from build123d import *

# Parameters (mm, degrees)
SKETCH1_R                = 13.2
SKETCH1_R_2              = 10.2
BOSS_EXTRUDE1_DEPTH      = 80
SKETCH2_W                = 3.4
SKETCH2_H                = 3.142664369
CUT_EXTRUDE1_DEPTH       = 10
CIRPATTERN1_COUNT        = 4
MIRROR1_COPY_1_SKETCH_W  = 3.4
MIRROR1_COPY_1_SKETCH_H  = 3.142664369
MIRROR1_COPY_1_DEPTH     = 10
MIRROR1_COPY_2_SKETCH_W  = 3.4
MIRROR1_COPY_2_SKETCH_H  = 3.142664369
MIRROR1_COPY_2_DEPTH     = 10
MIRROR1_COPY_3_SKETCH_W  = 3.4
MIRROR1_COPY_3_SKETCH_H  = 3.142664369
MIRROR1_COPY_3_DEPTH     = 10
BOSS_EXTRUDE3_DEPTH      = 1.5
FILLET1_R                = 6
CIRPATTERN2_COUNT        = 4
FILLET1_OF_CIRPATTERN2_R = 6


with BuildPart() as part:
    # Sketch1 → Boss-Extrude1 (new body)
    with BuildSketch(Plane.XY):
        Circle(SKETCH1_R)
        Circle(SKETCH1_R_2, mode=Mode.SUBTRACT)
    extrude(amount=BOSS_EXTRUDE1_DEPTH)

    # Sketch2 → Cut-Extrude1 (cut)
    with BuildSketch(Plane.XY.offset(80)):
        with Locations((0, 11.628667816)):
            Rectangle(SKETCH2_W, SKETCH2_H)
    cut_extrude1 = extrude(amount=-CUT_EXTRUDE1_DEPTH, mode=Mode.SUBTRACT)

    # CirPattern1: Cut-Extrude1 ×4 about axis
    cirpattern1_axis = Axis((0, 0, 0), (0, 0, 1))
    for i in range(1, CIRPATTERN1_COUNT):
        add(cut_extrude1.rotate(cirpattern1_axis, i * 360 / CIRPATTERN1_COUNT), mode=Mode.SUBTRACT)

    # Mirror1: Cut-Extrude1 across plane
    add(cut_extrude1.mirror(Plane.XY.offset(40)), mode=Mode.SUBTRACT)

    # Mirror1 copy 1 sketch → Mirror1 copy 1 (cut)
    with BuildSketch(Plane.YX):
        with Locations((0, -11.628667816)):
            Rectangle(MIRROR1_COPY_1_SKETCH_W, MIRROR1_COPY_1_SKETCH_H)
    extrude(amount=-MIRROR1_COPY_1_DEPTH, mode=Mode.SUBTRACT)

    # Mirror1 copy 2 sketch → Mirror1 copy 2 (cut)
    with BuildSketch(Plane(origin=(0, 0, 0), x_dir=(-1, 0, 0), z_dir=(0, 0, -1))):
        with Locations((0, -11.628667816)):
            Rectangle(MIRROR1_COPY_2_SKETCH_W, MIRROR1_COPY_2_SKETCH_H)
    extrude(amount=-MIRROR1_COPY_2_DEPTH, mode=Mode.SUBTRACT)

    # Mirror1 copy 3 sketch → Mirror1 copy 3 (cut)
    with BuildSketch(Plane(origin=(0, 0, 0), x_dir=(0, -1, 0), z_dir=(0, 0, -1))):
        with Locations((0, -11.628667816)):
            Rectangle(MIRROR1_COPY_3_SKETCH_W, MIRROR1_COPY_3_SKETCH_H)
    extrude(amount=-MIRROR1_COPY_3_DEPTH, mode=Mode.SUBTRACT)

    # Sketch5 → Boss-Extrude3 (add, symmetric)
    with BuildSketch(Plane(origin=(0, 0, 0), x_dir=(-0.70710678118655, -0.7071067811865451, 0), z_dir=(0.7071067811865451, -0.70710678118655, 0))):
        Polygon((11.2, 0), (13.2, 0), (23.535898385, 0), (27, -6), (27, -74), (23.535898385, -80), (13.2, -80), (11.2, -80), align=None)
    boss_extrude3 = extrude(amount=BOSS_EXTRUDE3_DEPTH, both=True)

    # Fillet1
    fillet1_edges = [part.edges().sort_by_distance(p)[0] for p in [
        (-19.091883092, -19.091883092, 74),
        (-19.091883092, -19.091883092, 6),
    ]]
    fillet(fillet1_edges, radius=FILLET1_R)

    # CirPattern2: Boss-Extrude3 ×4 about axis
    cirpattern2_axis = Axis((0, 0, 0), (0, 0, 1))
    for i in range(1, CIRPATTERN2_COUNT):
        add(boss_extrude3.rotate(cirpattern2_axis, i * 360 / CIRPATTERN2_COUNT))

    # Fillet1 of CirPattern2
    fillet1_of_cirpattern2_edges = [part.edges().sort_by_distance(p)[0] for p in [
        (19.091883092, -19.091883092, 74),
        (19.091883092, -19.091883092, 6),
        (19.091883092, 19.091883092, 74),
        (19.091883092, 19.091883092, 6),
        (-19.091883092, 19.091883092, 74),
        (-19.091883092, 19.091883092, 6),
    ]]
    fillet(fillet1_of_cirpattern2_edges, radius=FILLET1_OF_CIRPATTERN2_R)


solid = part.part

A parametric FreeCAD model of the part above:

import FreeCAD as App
import Part
import Sketcher
from FreeCAD import Vector
Q = App.Units.Quantity


def edges_at(feature, points):
    """Names of the edges that pass closest to the given points."""
    edges = feature.Shape.Edges
    near = lambda p: min(range(len(edges)), key=lambda i: edges[i].distToShape(Part.Vertex(*p))[0])
    return sorted({f"Edge{near(p) + 1}" for p in points})

doc = App.newDocument("Part")
body = doc.addObject("PartDesign::Body", "Body")

# Sketch on XY plane
sketch1 = doc.addObject("Sketcher::SketchObject", "Sketch")
body.addObject(sketch1)
sketch1.AttachmentSupport = (doc.XY_Plane, [""])
sketch1.MapMode = "FlatFace"
sketch1.addGeometry([
    Part.Circle(Vector(0, 0, 0), Vector(0, 0, 1), 13),
    Part.Circle(Vector(0, 0, 0), Vector(0, 0, 1), 10),
], False)
sketch1.addConstraint([
    Sketcher.Constraint("Coincident", 0, 3, -1, 1),
    Sketcher.Constraint("Coincident", 1, 3, -1, 1),
    Sketcher.Constraint("Diameter", 0, Q("26.4 mm")),
    Sketcher.Constraint("Diameter", 1, Q("20.4 mm")),
])
pad1 = doc.addObject("PartDesign::Pad", "Pad")
body.addObject(pad1)
pad1.Profile = sketch1
pad1.Length = 80

# Sketch on XY plane
sketch2 = doc.addObject("Sketcher::SketchObject", "Sketch001")
body.addObject(sketch2)
sketch2.AttachmentSupport = (doc.XY_Plane, [""])
sketch2.MapMode = "FlatFace"
sketch2.AttachmentOffset = App.Placement(Vector(0, 0, 80), App.Rotation())
sketch2.addGeometry([
    Part.LineSegment(Vector(-1.7, 13.2, 0), Vector(-1.7, 10.1, 0)),
    Part.LineSegment(Vector(-1.7, 10.1, 0), Vector(1.7, 10.1, 0)),
    Part.LineSegment(Vector(1.7, 10.1, 0), Vector(1.7, 13.2, 0)),
    Part.LineSegment(Vector(1.7, 13.2, 0), Vector(-1.7, 13.2, 0)),
], False)
sketch2.addConstraint([
    Sketcher.Constraint("Coincident", 0, 2, 1, 1),
    Sketcher.Constraint("Coincident", 1, 2, 2, 1),
    Sketcher.Constraint("Coincident", 2, 2, 3, 1),
    Sketcher.Constraint("Coincident", 3, 2, 0, 1),
    Sketcher.Constraint("Vertical", 0),
    Sketcher.Constraint("Horizontal", 1),
    Sketcher.Constraint("Vertical", 2),
    Sketcher.Constraint("Horizontal", 3),
    Sketcher.Constraint("DistanceX", 1, 1, 1, 2, Q("3.4 mm")),
    Sketcher.Constraint("DistanceX", 0, 2, -1, 1, Q("1.7 mm")),
    Sketcher.Constraint("DistanceY", -1, 1, 2, 2, Q("13.2 mm")),
    Sketcher.Constraint("DistanceY", 0, 2, 0, 1, Q("3.142664 mm")),
])
pocket1 = doc.addObject("PartDesign::Pocket", "Pocket")
body.addObject(pocket1)
pocket1.Profile = sketch2
pocket1.Length = 10
doc.recompute()

polarpattern = doc.addObject("PartDesign::PolarPattern", "PolarPattern")
body.addObject(polarpattern)
polarpattern.Originals = [pocket1]
polarpattern.Axis = (doc.Z_Axis, [""])
polarpattern.Angle = 360
polarpattern.Occurrences = 4
body.Tip = polarpattern
doc.recompute()

datumplane = doc.addObject("PartDesign::Plane", "DatumPlane")
body.addObject(datumplane)
datumplane.AttachmentSupport = (doc.XY_Plane, [""])
datumplane.MapMode = "FlatFace"
datumplane.AttachmentOffset = App.Placement(Vector(0, 0, 40), App.Rotation())
mirrored = doc.addObject("PartDesign::Mirrored", "Mirrored")
body.addObject(mirrored)
mirrored.Originals = [pocket1]
mirrored.MirrorPlane = (datumplane, [""])
body.Tip = mirrored

# Sketch on XY plane
sketch3 = doc.addObject("Sketcher::SketchObject", "Sketch002")
body.addObject(sketch3)
sketch3.AttachmentSupport = (doc.XY_Plane, [""])
sketch3.MapMode = "FlatFace"
sketch3.addGeometry([
    Part.LineSegment(Vector(-10.1, -1.7, 0), Vector(-13.2, -1.7, 0)),
    Part.LineSegment(Vector(-13.2, -1.7, 0), Vector(-13.2, 1.7, 0)),
    Part.LineSegment(Vector(-13.2, 1.7, 0), Vector(-10.1, 1.7, 0)),
    Part.LineSegment(Vector(-10.1, 1.7, 0), Vector(-10.1, -1.7, 0)),
], False)
sketch3.addConstraint([
    Sketcher.Constraint("Coincident", 0, 2, 1, 1),
    Sketcher.Constraint("Coincident", 1, 2, 2, 1),
    Sketcher.Constraint("Coincident", 2, 2, 3, 1),
    Sketcher.Constraint("Coincident", 3, 2, 0, 1),
    Sketcher.Constraint("Horizontal", 0),
    Sketcher.Constraint("Vertical", 1),
    Sketcher.Constraint("Horizontal", 2),
    Sketcher.Constraint("Vertical", 3),
    Sketcher.Constraint("DistanceY", 1, 1, 1, 2, Q("3.4 mm")),
    Sketcher.Constraint("DistanceX", 0, 2, -1, 1, Q("13.2 mm")),
    Sketcher.Constraint("DistanceY", 0, 2, -1, 1, Q("1.7 mm")),
    Sketcher.Constraint("DistanceX", 0, 2, 0, 1, Q("3.142664 mm")),
])
pocket2 = doc.addObject("PartDesign::Pocket", "Pocket001")
body.addObject(pocket2)
pocket2.Profile = sketch3
pocket2.Length = 10
pocket2.Reversed = True

# Sketch on XY plane
sketch4 = doc.addObject("Sketcher::SketchObject", "Sketch003")
body.addObject(sketch4)
sketch4.AttachmentSupport = (doc.XY_Plane, [""])
sketch4.MapMode = "FlatFace"
sketch4.addGeometry([
    Part.LineSegment(Vector(1.7, -10.1, 0), Vector(1.7, -13.2, 0)),
    Part.LineSegment(Vector(1.7, -13.2, 0), Vector(-1.7, -13.2, 0)),
    Part.LineSegment(Vector(-1.7, -13.2, 0), Vector(-1.7, -10.1, 0)),
    Part.LineSegment(Vector(-1.7, -10.1, 0), Vector(1.7, -10.1, 0)),
], False)
sketch4.addConstraint([
    Sketcher.Constraint("Coincident", 0, 2, 1, 1),
    Sketcher.Constraint("Coincident", 1, 2, 2, 1),
    Sketcher.Constraint("Coincident", 2, 2, 3, 1),
    Sketcher.Constraint("Coincident", 3, 2, 0, 1),
    Sketcher.Constraint("Vertical", 0),
    Sketcher.Constraint("Horizontal", 1),
    Sketcher.Constraint("Vertical", 2),
    Sketcher.Constraint("Horizontal", 3),
    Sketcher.Constraint("DistanceX", 1, 2, 1, 1, Q("3.4 mm")),
    Sketcher.Constraint("DistanceX", -1, 1, 0, 2, Q("1.7 mm")),
    Sketcher.Constraint("DistanceY", 0, 2, -1, 1, Q("13.2 mm")),
    Sketcher.Constraint("DistanceY", 0, 2, 0, 1, Q("3.142664 mm")),
])
pocket3 = doc.addObject("PartDesign::Pocket", "Pocket002")
body.addObject(pocket3)
pocket3.Profile = sketch4
pocket3.Length = 10
pocket3.Reversed = True

# Sketch on XY plane
sketch5 = doc.addObject("Sketcher::SketchObject", "Sketch004")
body.addObject(sketch5)
sketch5.AttachmentSupport = (doc.XY_Plane, [""])
sketch5.MapMode = "FlatFace"
sketch5.addGeometry([
    Part.LineSegment(Vector(10.1, 1.7, 0), Vector(13.2, 1.7, 0)),
    Part.LineSegment(Vector(13.2, 1.7, 0), Vector(13.2, -1.7, 0)),
    Part.LineSegment(Vector(13.2, -1.7, 0), Vector(10.1, -1.7, 0)),
    Part.LineSegment(Vector(10.1, -1.7, 0), Vector(10.1, 1.7, 0)),
], False)
sketch5.addConstraint([
    Sketcher.Constraint("Coincident", 0, 2, 1, 1),
    Sketcher.Constraint("Coincident", 1, 2, 2, 1),
    Sketcher.Constraint("Coincident", 2, 2, 3, 1),
    Sketcher.Constraint("Coincident", 3, 2, 0, 1),
    Sketcher.Constraint("Horizontal", 0),
    Sketcher.Constraint("Vertical", 1),
    Sketcher.Constraint("Horizontal", 2),
    Sketcher.Constraint("Vertical", 3),
    Sketcher.Constraint("DistanceY", 1, 2, 1, 1, Q("3.4 mm")),
    Sketcher.Constraint("DistanceX", -1, 1, 0, 2, Q("13.2 mm")),
    Sketcher.Constraint("DistanceY", -1, 1, 0, 2, Q("1.7 mm")),
    Sketcher.Constraint("DistanceX", 0, 1, 0, 2, Q("3.142664 mm")),
])
pocket4 = doc.addObject("PartDesign::Pocket", "Pocket003")
body.addObject(pocket4)
pocket4.Profile = sketch5
pocket4.Length = 10
pocket4.Reversed = True

# Sketch on an angled plane
sketch6 = doc.addObject("Sketcher::SketchObject", "Sketch005")
body.addObject(sketch6)
sketch6.Placement = App.Placement(Vector(0, 0, 0), App.Rotation(Vector(-0.707106781, -0.707106781, 0), Vector(0, 0, -0.999999999), Vector(0.707106781, -0.707106781, 0), "ZXY"))
sketch6.addGeometry([
    Part.LineSegment(Vector(24, 0, 0), Vector(11, 0, 0)),  # 0
    Part.LineSegment(Vector(11, 0, 0), Vector(11, -80, 0)),  # 1
    Part.LineSegment(Vector(11, -80, 0), Vector(24, -80, 0)),  # 2
    Part.LineSegment(Vector(24, -80, 0), Vector(27, -74, 0)),  # 3
    Part.LineSegment(Vector(27, -74, 0), Vector(27, -6, 0)),  # 4
    Part.LineSegment(Vector(27, -6, 0), Vector(24, 0, 0)),  # 5
], False)
sketch6.addConstraint([
    Sketcher.Constraint("Coincident", 0, 2, 1, 1),
    Sketcher.Constraint("Coincident", 1, 2, 2, 1),
    Sketcher.Constraint("Coincident", 2, 2, 3, 1),
    Sketcher.Constraint("Coincident", 3, 2, 4, 1),
    Sketcher.Constraint("Coincident", 4, 2, 5, 1),
    Sketcher.Constraint("Coincident", 5, 2, 0, 1),
    Sketcher.Constraint("Horizontal", 0),
    Sketcher.Constraint("Vertical", 1),
    Sketcher.Constraint("Horizontal", 2),
    Sketcher.Constraint("Vertical", 4),
    Sketcher.Constraint("PointOnObject", 0, 2, -1),
    Sketcher.Constraint("Vertical", 2, 2, 5, 2),
    Sketcher.Constraint("Equal", 3, 5),
    Sketcher.Constraint("DistanceY", 1, 2, 1, 1, Q("80 mm")),
    Sketcher.Constraint("DistanceY", 4, 1, 4, 2, Q("68 mm")),
    Sketcher.Constraint("Angle", 3, Q("60 deg")),
    Sketcher.Constraint("DistanceX", -1, 1, 3, 2, Q("27 mm")),
    Sketcher.Constraint("DistanceX", -1, 1, 0, 2, Q("11.2 mm")),
])
pad2 = doc.addObject("PartDesign::Pad", "Pad001")
body.addObject(pad2)
pad2.Profile = sketch6
pad2.Length = 3
pad2.Midplane = True
doc.recompute()

fillet = doc.addObject("PartDesign::Fillet", "Fillet")
body.addObject(fillet)
fillet.Base = (pad2, edges_at(pad2, [(-19.092, -19.092, 74), (-19.092, -19.092, 6)]))
fillet.Radius = 6
doc.recompute()

polarpattern2 = doc.addObject("PartDesign::PolarPattern", "PolarPattern001")
body.addObject(polarpattern2)
polarpattern2.Originals = [pad2]
polarpattern2.Axis = (doc.Z_Axis, [""])
polarpattern2.Angle = 360
polarpattern2.Occurrences = 4
body.Tip = polarpattern2
doc.recompute()

fillet2 = doc.addObject("PartDesign::Fillet", "Fillet001")
body.addObject(fillet2)
fillet2.Base = (polarpattern2, edges_at(polarpattern2, [
    (19.092, -19.092, 74),
    (19.092, -19.092, 6),
    (19.092, 19.092, 74),
    (19.092, 19.092, 6),
    (-19.092, 19.092, 74),
    (-19.092, 19.092, 6),
]))
fillet2.Radius = 6

doc.recompute()
